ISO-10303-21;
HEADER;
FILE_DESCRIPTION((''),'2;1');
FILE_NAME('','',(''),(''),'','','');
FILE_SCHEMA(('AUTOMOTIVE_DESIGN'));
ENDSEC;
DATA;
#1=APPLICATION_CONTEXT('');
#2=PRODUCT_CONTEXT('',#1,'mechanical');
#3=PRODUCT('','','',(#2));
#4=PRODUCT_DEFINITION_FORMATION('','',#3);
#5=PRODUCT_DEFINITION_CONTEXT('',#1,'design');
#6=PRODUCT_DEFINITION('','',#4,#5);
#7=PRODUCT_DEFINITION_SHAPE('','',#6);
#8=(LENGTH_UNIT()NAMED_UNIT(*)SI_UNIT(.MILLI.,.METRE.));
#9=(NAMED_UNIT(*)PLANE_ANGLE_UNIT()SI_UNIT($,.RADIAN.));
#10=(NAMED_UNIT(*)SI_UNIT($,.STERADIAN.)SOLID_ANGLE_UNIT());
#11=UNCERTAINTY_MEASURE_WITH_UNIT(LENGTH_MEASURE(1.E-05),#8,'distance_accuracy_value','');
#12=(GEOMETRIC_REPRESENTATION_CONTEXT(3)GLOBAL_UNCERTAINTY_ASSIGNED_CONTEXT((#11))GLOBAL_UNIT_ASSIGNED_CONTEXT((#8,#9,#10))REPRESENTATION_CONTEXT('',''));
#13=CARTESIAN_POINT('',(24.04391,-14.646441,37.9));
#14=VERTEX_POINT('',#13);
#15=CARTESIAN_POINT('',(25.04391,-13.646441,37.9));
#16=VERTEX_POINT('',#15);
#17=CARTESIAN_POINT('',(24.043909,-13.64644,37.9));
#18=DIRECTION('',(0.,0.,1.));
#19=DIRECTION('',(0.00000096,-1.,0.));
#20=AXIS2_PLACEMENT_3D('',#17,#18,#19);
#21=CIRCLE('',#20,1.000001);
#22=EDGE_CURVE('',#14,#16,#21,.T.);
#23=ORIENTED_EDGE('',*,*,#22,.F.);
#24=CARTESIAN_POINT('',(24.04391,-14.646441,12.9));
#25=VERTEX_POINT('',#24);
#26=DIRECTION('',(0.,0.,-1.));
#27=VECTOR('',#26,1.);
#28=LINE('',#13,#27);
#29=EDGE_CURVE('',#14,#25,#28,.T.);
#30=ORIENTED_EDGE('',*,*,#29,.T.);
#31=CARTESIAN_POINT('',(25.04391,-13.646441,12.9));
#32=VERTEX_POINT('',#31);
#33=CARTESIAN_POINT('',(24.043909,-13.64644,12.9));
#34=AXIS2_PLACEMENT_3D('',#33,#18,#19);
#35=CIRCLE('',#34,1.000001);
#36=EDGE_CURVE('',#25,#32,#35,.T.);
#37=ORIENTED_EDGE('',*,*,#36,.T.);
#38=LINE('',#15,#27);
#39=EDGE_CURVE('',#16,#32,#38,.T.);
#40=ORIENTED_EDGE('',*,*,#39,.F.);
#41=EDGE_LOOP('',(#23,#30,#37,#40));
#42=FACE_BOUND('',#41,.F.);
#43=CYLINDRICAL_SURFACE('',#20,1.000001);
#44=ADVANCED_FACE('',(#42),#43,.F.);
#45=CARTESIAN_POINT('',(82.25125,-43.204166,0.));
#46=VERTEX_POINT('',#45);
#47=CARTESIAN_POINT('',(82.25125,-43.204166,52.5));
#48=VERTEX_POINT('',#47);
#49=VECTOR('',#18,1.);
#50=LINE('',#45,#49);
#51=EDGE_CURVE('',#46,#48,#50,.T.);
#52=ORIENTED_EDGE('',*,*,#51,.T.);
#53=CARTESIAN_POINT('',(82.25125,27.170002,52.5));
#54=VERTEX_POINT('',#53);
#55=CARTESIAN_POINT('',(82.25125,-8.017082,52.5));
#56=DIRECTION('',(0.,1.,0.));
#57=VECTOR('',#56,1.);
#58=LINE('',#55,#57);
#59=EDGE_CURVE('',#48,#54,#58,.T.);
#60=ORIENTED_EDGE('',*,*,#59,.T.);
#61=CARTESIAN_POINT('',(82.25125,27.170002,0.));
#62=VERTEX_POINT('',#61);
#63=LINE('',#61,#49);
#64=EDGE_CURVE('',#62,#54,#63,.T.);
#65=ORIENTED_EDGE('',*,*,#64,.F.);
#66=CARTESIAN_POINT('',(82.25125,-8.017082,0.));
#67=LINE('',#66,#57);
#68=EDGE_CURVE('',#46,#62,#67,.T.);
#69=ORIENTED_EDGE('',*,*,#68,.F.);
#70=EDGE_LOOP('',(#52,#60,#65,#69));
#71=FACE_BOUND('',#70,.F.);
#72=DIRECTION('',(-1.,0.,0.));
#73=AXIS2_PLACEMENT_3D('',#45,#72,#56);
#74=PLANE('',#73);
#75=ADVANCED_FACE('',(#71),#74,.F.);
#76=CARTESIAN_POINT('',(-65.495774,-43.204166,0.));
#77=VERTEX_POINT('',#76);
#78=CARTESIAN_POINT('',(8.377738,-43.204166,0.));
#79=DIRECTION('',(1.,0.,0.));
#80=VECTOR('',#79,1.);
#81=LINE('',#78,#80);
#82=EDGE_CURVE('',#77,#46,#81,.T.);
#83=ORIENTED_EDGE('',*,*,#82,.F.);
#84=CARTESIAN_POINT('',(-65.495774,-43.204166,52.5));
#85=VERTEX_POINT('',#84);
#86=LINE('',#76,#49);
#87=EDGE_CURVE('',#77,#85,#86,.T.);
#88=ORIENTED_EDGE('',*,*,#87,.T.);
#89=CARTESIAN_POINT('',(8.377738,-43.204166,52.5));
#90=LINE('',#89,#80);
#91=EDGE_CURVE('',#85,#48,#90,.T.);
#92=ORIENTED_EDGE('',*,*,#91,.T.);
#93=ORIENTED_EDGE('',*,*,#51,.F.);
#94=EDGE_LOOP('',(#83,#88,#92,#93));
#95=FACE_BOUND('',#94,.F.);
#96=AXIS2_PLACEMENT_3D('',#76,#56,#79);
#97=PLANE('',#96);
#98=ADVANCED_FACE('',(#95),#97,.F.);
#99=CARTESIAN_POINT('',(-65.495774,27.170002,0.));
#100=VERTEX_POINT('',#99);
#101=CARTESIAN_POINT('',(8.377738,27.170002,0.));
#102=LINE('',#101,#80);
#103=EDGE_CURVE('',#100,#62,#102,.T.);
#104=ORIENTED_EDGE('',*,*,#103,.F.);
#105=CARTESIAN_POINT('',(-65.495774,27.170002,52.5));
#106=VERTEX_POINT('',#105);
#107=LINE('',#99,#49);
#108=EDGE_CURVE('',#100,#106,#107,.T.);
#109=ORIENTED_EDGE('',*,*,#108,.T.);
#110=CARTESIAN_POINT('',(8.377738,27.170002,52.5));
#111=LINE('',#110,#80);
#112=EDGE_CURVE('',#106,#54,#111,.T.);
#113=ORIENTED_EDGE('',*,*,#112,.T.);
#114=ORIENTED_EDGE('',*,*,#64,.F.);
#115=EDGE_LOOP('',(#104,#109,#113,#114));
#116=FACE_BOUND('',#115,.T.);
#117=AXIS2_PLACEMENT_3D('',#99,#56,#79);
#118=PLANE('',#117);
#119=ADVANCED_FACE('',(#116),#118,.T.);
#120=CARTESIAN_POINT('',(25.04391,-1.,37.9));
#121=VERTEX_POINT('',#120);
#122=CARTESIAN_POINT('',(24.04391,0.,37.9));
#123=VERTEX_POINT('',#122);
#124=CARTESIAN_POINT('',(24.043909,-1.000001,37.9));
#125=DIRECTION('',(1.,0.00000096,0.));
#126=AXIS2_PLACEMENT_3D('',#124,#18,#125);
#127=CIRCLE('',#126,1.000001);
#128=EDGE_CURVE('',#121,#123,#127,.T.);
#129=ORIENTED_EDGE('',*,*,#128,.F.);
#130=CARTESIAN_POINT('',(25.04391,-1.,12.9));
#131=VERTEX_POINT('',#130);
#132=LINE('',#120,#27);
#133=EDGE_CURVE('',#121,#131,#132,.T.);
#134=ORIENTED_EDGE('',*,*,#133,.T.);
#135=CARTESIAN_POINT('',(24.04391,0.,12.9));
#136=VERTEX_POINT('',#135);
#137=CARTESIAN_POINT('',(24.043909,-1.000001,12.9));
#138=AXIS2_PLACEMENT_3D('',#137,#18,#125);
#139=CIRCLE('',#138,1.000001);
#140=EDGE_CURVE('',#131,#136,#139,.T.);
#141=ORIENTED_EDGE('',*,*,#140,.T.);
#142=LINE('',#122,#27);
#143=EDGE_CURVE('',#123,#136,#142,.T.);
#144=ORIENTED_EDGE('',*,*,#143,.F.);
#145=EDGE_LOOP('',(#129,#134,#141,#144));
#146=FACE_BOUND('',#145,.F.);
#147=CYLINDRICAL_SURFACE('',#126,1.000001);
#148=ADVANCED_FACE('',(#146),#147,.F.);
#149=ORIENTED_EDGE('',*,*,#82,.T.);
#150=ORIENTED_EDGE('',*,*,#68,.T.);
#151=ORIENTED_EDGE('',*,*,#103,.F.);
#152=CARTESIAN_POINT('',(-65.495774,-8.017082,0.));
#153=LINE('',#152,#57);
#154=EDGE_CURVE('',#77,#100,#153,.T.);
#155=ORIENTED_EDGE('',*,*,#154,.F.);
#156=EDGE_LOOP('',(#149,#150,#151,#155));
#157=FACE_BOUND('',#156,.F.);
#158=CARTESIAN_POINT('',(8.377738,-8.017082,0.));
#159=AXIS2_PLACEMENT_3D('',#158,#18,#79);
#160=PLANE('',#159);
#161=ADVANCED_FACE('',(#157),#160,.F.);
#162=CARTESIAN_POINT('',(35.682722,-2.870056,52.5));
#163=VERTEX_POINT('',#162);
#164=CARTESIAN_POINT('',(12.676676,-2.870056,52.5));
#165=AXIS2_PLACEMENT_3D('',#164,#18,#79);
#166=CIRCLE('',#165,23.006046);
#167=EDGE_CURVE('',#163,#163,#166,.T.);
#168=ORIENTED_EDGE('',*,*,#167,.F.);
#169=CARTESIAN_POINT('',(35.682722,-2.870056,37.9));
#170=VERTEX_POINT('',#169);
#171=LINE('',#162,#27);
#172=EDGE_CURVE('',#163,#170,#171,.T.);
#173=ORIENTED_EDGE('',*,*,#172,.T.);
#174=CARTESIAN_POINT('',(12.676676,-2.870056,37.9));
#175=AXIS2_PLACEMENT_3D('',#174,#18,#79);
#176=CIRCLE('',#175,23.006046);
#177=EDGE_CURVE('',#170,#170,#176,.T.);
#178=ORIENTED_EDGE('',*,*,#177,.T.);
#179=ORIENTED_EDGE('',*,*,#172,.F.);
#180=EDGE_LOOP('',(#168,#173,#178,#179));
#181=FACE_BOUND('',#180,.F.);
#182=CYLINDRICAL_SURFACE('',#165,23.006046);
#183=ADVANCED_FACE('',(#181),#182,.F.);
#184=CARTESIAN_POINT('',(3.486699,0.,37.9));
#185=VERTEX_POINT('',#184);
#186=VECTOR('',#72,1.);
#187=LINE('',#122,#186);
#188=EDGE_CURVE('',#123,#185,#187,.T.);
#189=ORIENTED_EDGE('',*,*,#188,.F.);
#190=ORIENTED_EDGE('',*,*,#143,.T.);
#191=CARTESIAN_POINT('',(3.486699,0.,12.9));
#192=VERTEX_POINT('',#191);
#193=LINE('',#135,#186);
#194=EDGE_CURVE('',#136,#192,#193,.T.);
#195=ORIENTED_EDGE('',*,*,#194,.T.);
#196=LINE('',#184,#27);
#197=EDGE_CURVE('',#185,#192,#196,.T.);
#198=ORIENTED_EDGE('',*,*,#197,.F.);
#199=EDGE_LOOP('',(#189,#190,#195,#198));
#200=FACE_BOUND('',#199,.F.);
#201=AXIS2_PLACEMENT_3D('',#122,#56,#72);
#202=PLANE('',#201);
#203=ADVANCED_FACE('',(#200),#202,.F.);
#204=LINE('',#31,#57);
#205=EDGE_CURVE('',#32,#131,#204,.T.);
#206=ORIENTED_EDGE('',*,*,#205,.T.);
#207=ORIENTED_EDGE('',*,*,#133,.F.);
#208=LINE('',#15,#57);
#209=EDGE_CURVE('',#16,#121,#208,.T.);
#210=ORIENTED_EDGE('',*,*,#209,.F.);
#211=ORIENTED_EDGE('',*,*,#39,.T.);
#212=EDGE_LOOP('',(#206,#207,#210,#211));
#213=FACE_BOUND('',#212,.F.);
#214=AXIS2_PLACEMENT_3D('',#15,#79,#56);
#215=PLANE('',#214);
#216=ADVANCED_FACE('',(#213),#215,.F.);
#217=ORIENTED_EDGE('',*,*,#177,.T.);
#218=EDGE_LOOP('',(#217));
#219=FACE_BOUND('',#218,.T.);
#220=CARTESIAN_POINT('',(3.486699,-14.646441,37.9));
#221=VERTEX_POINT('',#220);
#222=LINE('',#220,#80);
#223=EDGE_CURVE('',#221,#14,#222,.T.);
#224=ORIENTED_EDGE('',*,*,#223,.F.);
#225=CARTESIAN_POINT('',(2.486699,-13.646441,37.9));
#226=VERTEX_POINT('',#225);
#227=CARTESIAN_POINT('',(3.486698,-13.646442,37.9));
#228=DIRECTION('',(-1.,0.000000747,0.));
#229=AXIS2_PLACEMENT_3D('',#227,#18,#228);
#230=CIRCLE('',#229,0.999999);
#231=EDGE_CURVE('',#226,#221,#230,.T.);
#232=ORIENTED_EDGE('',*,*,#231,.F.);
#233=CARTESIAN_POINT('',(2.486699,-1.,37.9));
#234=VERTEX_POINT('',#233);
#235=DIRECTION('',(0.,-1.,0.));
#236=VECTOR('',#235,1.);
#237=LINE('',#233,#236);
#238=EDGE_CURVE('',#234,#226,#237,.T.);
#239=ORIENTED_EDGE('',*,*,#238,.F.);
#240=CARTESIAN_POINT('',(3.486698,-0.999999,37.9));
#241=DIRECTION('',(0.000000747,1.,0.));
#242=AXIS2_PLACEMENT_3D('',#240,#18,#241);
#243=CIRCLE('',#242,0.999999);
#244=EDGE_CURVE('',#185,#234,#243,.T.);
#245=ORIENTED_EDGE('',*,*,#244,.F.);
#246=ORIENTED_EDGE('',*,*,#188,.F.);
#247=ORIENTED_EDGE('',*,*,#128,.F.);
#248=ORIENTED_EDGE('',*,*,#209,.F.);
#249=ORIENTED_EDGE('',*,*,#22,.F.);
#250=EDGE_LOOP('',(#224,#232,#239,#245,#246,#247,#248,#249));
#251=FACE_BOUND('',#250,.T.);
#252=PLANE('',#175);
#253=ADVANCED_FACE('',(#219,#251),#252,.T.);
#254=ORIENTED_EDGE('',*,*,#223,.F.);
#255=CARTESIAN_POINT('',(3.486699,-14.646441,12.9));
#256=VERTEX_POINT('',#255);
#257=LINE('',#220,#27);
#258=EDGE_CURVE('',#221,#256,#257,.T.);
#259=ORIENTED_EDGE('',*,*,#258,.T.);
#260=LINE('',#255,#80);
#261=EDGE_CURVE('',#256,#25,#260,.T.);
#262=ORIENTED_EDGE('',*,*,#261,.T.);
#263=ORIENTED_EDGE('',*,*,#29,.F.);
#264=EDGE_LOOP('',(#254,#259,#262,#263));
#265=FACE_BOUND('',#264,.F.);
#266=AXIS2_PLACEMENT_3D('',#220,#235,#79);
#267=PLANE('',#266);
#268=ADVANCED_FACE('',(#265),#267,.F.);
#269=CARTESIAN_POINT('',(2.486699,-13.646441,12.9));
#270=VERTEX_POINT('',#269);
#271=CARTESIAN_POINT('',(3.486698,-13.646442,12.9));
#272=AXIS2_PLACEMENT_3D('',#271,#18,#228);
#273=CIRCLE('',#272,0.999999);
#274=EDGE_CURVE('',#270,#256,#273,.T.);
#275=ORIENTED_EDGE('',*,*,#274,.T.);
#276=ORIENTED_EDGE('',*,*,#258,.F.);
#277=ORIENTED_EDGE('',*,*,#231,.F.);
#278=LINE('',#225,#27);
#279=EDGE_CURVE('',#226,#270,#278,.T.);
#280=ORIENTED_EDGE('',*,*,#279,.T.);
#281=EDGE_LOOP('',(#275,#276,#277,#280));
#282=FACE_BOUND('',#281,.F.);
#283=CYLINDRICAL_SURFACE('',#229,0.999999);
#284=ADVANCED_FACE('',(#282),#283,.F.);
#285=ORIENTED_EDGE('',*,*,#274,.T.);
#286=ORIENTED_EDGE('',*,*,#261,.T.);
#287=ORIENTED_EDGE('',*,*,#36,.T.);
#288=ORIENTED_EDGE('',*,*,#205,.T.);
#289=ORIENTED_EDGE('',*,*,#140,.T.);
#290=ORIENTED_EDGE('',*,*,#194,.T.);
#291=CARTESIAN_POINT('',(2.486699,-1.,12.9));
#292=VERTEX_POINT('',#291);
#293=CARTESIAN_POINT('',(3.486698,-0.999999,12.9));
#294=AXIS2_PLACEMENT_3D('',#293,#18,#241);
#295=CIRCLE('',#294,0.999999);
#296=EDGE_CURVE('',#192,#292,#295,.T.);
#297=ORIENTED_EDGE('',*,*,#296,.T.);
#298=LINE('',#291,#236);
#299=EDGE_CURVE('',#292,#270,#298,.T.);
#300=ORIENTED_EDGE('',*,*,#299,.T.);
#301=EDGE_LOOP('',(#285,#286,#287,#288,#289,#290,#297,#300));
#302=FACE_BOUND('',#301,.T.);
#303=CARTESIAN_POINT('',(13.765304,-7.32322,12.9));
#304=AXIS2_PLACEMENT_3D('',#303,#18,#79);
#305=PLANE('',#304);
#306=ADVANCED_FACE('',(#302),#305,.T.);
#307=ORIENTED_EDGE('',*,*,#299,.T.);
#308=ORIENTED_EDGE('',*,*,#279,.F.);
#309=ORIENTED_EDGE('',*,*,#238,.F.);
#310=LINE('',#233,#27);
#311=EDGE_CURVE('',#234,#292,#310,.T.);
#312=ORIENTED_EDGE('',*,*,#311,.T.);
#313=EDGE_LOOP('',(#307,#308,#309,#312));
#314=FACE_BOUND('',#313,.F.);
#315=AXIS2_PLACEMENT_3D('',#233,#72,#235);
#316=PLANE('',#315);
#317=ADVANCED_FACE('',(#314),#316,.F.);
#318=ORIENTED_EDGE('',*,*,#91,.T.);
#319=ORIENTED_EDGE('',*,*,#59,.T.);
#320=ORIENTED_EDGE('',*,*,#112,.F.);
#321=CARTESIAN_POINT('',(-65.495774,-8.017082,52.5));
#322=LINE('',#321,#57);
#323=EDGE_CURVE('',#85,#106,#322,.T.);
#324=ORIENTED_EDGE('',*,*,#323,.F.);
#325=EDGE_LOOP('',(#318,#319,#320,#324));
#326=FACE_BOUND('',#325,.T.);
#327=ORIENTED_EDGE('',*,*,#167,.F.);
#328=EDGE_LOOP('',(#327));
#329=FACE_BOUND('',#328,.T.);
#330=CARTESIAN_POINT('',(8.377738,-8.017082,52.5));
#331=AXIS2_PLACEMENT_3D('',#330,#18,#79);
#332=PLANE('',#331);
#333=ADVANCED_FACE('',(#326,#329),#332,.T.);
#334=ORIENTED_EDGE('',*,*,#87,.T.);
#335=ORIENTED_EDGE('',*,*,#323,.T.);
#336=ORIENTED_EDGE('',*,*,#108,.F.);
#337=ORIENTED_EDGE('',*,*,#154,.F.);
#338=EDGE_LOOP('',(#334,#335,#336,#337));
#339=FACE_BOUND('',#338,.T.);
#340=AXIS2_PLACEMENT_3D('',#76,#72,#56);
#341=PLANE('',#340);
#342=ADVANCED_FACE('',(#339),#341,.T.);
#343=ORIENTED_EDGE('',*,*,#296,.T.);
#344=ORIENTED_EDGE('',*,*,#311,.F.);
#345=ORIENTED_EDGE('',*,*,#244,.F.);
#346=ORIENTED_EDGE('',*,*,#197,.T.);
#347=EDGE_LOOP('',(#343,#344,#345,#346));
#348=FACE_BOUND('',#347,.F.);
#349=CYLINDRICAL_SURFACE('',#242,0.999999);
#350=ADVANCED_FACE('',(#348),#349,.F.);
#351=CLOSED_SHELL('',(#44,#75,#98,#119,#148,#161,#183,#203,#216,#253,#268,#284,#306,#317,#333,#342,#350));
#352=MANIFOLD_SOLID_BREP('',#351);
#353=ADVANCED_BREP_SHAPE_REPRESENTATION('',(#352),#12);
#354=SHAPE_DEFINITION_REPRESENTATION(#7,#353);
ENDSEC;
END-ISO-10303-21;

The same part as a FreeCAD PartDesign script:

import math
import FreeCAD as App
import Part
import Sketcher

V = App.Vector


def add_polygon(sketch, points):
    """Adds a closed chain of lines whose ends are joined by coincident constraints."""
    first, n = sketch.GeometryCount, len(points)
    for a, b in zip(points, points[1:] + points[:1]):
        sketch.addGeometry(Part.LineSegment(App.Vector(*a, 0), App.Vector(*b, 0)), False)
    for i in range(n):
        sketch.addConstraint(Sketcher.Constraint("Coincident", first + i, 2, first + (i + 1) % n, 1))

doc = App.newDocument("Part")
body = doc.addObject("PartDesign::Body", "Body")

# Sketch on XY plane
sketch1 = body.newObject("Sketcher::SketchObject", "Sketch")
sketch1.AttachmentSupport = (doc.getObject("XY_Plane"), [""])
sketch1.MapMode = "FlatFace"
add_polygon(sketch1, [(-65.495774, 27.170002), (-65.495774, -43.204166), (82.25125, -43.204166), (82.25125, 27.170002)])  # lines 0-3
sketch1.addConstraint([
    Sketcher.Constraint("Vertical", 0),
    Sketcher.Constraint("Horizontal", 1),
    Sketcher.Constraint("Vertical", 2),
    Sketcher.Constraint("Horizontal", 3),
    Sketcher.Constraint("DistanceY", -1, 1, 2, 2, 27.170002),
    Sketcher.Constraint("DistanceX", 1, 1, 1, 2, 147.747025),
    Sketcher.Constraint("DistanceY", 0, 2, 0, 1, 70.374168),
    Sketcher.Constraint("DistanceX", -1, 1, 1, 2, 82.25125),
])
pad1 = body.newObject("PartDesign::Pad", "Pad")
pad1.Profile = sketch1
pad1.Length = 52.5

# Sketch on XY plane
sketch2 = body.newObject("Sketcher::SketchObject", "Sketch001")
sketch2.AttachmentSupport = (doc.getObject("XY_Plane"), [""])
sketch2.MapMode = "FlatFace"
sketch2.AttachmentOffset = App.Placement(V(0, 0, 52.5), App.Rotation())
sketch2.addGeometry(Part.Circle(V(12.676676, -2.870056, 0), V(0, 0, 1), 23.006046), False)
sketch2.addConstraint([
    Sketcher.Constraint("Diameter", 0, 46.012092),
    Sketcher.Constraint("DistanceX", -1, 1, 0, 3, 12.676676),
    Sketcher.Constraint("DistanceY", 0, 3, -1, 1, 2.870056),
])
pocket1 = body.newObject("PartDesign::Pocket", "Pocket")
pocket1.Profile = sketch2
pocket1.Length = 14.6

# Sketch on XY plane
sketch3 = body.newObject("Sketcher::SketchObject", "Sketch002")
sketch3.AttachmentSupport = (doc.getObject("XY_Plane"), [""])
sketch3.MapMode = "FlatFace"
sketch3.AttachmentOffset = App.Placement(V(0, 0, 37.9), App.Rotation())
sketch3.addGeometry([
    Part.LineSegment(V(24.04391, 0, 0), V(3.486699, 0, 0)),  # 0
    Part.ArcOfCircle(Part.Circle(V(3.486698, -0.999999, 0), V(0, 0, 1), 0.999999), math.radians(89.999957), math.radians(180.000043)),  # 1
    Part.LineSegment(V(2.486699, -1, 0), V(2.486699, -13.646441, 0)),  # 2
    Part.ArcOfCircle(Part.Circle(V(3.486698, -13.646442, 0), V(0, 0, 1), 0.999999), math.radians(179.999957), math.radians(270.000043)),  # 3
    Part.LineSegment(V(3.486699, -14.646441, 0), V(24.04391, -14.646441, 0)),  # 4
    Part.ArcOfCircle(Part.Circle(V(24.043909, -13.64644, 0), V(0, 0, 1), 1.000001), math.radians(-89.999945), math.radians(-0.000055)),  # 5
    Part.LineSegment(V(25.04391, -13.646441, 0), V(25.04391, -1, 0)),  # 6
    Part.ArcOfCircle(Part.Circle(V(24.043909, -1.000001, 0), V(0, 0, 1), 1.000001), math.radians(0.000055), math.radians(89.999945)),  # 7
], False)
sketch3.addConstraint([
    Sketcher.Constraint("Tangent", 0, 2, 1, 1),
    Sketcher.Constraint("Tangent", 1, 2, 2, 1),
    Sketcher.Constraint("Tangent", 2, 2, 3, 1),
    Sketcher.Constraint("Tangent", 3, 2, 4, 1),
    Sketcher.Constraint("Tangent", 4, 2, 5, 1),
    Sketcher.Constraint("Tangent", 5, 2, 6, 1),
    Sketcher.Constraint("Tangent", 6, 2, 7, 1),
    Sketcher.Constraint("Tangent", 7, 2, 0, 1),
    Sketcher.Constraint("Horizontal", 0),
    Sketcher.Constraint("Vertical", 2),
    Sketcher.Constraint("Horizontal", 4),
    Sketcher.Constraint("Vertical", 6),
    Sketcher.Constraint("Equal", 1, 3),
    Sketcher.Constraint("Equal", 3, 5),
    Sketcher.Constraint("Equal", 5, 7),
    Sketcher.Constraint("PointOnObject", 0, 2, -1),
    Sketcher.Constraint("Radius", 1, 0.999999),
    Sketcher.Constraint("DistanceX", 0, 2, 0, 1, 20.557211),
    Sketcher.Constraint("DistanceY", 2, 2, 2, 1, 12.646441),
    Sketcher.Constraint("DistanceX", -1, 1, 1, 3, 3.486698),
])
pocket2 = body.newObject("PartDesign::Pocket", "Pocket001")
pocket2.Profile = sketch3
pocket2.Length = 25

doc.recompute()
